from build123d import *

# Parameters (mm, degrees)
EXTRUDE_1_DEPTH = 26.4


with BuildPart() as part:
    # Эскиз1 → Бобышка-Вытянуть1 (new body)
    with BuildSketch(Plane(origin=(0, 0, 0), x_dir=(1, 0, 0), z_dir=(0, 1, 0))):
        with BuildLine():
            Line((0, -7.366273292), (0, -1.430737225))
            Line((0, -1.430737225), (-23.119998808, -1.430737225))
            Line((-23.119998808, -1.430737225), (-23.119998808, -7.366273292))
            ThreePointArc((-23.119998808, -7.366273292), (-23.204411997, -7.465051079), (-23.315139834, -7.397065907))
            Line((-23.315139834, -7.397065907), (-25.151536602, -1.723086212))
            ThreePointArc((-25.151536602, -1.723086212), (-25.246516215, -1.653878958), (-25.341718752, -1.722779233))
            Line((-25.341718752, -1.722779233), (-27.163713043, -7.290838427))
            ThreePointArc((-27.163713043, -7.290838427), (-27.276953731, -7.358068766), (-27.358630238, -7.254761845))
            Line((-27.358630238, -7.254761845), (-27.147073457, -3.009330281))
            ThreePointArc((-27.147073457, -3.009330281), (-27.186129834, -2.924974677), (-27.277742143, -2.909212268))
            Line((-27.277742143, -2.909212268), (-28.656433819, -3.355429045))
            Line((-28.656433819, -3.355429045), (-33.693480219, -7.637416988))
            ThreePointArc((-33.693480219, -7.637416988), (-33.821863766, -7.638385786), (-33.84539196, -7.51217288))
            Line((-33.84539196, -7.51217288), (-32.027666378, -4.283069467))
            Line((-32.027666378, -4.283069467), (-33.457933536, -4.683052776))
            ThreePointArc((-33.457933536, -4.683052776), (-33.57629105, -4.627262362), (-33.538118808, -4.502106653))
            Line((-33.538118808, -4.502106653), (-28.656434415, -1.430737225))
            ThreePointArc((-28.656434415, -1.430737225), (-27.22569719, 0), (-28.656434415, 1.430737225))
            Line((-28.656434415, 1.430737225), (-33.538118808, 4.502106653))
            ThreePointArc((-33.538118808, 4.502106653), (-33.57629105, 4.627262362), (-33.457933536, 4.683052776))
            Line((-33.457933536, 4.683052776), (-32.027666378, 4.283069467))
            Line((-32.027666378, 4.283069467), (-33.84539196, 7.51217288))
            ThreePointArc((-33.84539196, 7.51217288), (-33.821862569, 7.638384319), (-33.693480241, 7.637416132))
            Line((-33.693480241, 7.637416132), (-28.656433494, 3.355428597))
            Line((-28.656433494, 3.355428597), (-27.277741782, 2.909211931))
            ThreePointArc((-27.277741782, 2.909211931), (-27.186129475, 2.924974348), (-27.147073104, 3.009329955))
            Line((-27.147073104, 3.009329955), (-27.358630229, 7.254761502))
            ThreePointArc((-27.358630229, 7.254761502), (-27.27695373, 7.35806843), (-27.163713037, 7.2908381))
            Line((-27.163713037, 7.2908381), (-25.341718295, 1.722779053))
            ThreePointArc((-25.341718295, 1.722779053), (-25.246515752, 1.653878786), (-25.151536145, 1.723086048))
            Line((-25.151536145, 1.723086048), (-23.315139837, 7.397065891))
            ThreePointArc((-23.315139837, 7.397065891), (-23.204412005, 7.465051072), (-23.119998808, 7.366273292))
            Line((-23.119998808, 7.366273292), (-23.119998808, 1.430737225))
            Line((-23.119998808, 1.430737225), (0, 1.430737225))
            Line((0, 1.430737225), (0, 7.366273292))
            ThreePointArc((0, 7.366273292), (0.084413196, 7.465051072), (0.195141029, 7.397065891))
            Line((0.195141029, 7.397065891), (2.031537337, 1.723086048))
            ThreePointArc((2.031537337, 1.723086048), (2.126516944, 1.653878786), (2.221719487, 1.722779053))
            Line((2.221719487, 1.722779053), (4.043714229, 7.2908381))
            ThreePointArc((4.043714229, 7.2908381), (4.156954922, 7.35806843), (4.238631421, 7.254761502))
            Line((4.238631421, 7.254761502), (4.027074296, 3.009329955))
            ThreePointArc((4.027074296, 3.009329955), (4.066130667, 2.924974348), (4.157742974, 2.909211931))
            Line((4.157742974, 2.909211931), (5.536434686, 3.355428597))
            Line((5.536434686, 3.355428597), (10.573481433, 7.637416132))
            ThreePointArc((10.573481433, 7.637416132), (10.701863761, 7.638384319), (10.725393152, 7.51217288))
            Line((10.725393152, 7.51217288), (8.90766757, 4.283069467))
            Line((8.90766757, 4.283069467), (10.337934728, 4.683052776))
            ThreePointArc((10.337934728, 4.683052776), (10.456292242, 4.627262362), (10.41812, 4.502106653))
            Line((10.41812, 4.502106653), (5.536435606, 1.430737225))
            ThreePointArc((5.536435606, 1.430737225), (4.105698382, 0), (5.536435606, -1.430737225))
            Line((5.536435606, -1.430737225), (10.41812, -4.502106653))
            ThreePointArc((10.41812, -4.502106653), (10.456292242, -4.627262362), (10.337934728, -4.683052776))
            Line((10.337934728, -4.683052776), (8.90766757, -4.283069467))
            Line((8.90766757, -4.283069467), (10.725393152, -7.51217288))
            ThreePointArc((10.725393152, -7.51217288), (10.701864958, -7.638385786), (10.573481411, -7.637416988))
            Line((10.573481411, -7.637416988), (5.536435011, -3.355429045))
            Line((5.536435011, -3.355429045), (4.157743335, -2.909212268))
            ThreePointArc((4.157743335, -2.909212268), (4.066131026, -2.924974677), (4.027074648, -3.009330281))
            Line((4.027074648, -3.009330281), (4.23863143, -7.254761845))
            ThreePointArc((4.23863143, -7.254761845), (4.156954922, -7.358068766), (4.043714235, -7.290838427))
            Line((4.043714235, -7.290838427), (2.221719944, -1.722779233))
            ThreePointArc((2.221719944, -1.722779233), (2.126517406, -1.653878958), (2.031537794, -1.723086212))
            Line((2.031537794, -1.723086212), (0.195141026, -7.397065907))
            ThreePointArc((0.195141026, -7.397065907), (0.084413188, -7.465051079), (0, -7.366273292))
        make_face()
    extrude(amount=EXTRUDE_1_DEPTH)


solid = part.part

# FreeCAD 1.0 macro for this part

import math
import FreeCAD as App
import Part
import Sketcher
Q = App.Units.Quantity

doc = App.newDocument("Part")
body = doc.addObject("PartDesign::Body", "Body")

# Sketch on XZ plane
sketch1 = body.newObject("Sketcher::SketchObject", "Sketch")
sketch1.AttachmentSupport = (doc.getObject("XZ_Plane"), [""])
sketch1.MapMode = "FlatFace"
sketch1.addGeometry([
    Part.LineSegment(App.Vector(0, 1.430737, 0), App.Vector(0, 7.366273, 0)),  # 0
    Part.ArcOfCircle(Part.Circle(App.Vector(0.1, 7.366273, 0), App.Vector(0, 0, 1), 0.1), math.radians(17.934295), math.radians(180)),  # 1
    Part.LineSegment(App.Vector(0.195141, 7.397066, 0), App.Vector(2.031538, 1.723086, 0)),  # 2
    Part.ArcOfCircle(Part.Circle(App.Vector(2.126679, 1.753879, 0), App.Vector(0, 0, 1), 0.1), math.radians(-162.065704), math.radians(-18.119261)),  # 3
    Part.LineSegment(App.Vector(2.22172, 1.722779, 0), App.Vector(4.043714, 7.290838, 0)),  # 4
    Part.ArcOfCircle(Part.Circle(App.Vector(4.138755, 7.259739, 0), App.Vector(0, 0, 1), 0.1), math.radians(-2.852782), math.radians(161.880739)),  # 5
    Part.LineSegment(App.Vector(4.238631, 7.254762, 0), App.Vector(4.027075, 3.00933, 0)),  # 6
    Part.ArcOfCircle(Part.Circle(App.Vector(4.126951, 3.004353, 0), App.Vector(0, 0, 1), 0.1), math.radians(177.147219), math.radians(287.934295)),  # 7
    Part.LineSegment(App.Vector(4.157743, 2.909212, 0), App.Vector(5.536435, 3.355429, 0)),  # 8
    Part.LineSegment(App.Vector(5.536435, 3.355429, 0), App.Vector(10.573481, 7.637417, 0)),  # 9
    Part.ArcOfCircle(Part.Circle(App.Vector(10.638252, 7.561228, 0), App.Vector(0, 0, 1), 0.1), math.radians(-29.376652), math.radians(130.368688)),  # 10
    Part.LineSegment(App.Vector(10.725393, 7.512173, 0), App.Vector(8.907668, 4.283069, 0)),  # 11
    Part.LineSegment(App.Vector(8.907668, 4.283069, 0), App.Vector(10.337935, 4.683053, 0)),  # 12
    Part.ArcOfCircle(Part.Circle(App.Vector(10.364867, 4.586748, 0), App.Vector(0, 0, 1), 0.1), math.radians(-57.823465), math.radians(105.623987)),  # 13
    Part.LineSegment(App.Vector(10.41812, 4.502107, 0), App.Vector(5.536436, 1.430737, 0)),  # 14
    Part.ArcOfCircle(Part.Circle(App.Vector(5.536436, 0, 0), App.Vector(0, 0, 1), 1.430737), math.radians(90), math.radians(270)),  # 15
    Part.LineSegment(App.Vector(5.536436, -1.430737, 0), App.Vector(10.41812, -4.502107, 0)),  # 16
    Part.ArcOfCircle(Part.Circle(App.Vector(10.364867, -4.586748, 0), App.Vector(0, 0, 1), 0.1), math.radians(-105.623987), math.radians(57.823465)),  # 17
    Part.LineSegment(App.Vector(10.337935, -4.683053, 0), App.Vector(8.907668, -4.283069, 0)),  # 18
    Part.LineSegment(App.Vector(8.907668, -4.283069, 0), App.Vector(10.725393, -7.512173, 0)),  # 19
    Part.ArcOfCircle(Part.Circle(App.Vector(10.638251, -7.561226, 0), App.Vector(0, 0, 1), 0.1), math.radians(-130.367962), math.radians(29.37555)),  # 20
    Part.LineSegment(App.Vector(10.573481, -7.637416, 0), App.Vector(5.536435, -3.355429, 0)),  # 21
    Part.LineSegment(App.Vector(5.536435, -3.355429, 0), App.Vector(4.157743, -2.909212, 0)),  # 22
    Part.ArcOfCircle(Part.Circle(App.Vector(4.12695, -3.004353, 0), App.Vector(0, 0, 1), 0.1), math.radians(72.065711), math.radians(182.852786)),  # 23
    Part.LineSegment(App.Vector(4.027074, -3.00933, 0), App.Vector(4.238631, -7.254762, 0)),  # 24
    Part.ArcOfCircle(Part.Circle(App.Vector(4.138755, -7.259738, 0), App.Vector(0, 0, 1), 0.1), math.radians(-161.880734), math.radians(2.852787)),  # 25
    Part.LineSegment(App.Vector(4.043714, -7.290838, 0), App.Vector(2.221719, -1.722779, 0)),  # 26
    Part.ArcOfCircle(Part.Circle(App.Vector(2.126678, -1.753879, 0), App.Vector(0, 0, 1), 0.1), math.radians(18.119266), math.radians(162.065709)),  # 27
    Part.LineSegment(App.Vector(2.031537, -1.723086, 0), App.Vector(0.195141, -7.397066, 0)),  # 28
    Part.ArcOfCircle(Part.Circle(App.Vector(0.1, -7.366273, 0), App.Vector(0, 0, 1), 0.1), math.radians(-179.999995), math.radians(-17.934291)),  # 29
    Part.LineSegment(App.Vector(0, -7.366273, 0), App.Vector(0, -1.430737, 0)),  # 30
    Part.LineSegment(App.Vector(0, -1.430737, 0), App.Vector(-23.119999, -1.430737, 0)),  # 31
    Part.LineSegment(App.Vector(-23.119999, -1.430737, 0), App.Vector(-23.119999, -7.366273, 0)),  # 32
    Part.ArcOfCircle(Part.Circle(App.Vector(-23.219999, -7.366273, 0), App.Vector(0, 0, 1), 0.1), math.radians(-162.065709), math.radians(-0.000005)),  # 33
    Part.LineSegment(App.Vector(-23.31514, -7.397066, 0), App.Vector(-25.151536, -1.723086, 0)),  # 34
    Part.ArcOfCircle(Part.Circle(App.Vector(-25.246677, -1.753879, 0), App.Vector(0, 0, 1), 0.1), math.radians(17.934291), math.radians(161.880734)),  # 35
    Part.LineSegment(App.Vector(-25.341718, -1.722779, 0), App.Vector(-27.163713, -7.290838, 0)),  # 36
    Part.ArcOfCircle(Part.Circle(App.Vector(-27.258754, -7.259738, 0), App.Vector(0, 0, 1), 0.1), math.radians(177.147213), math.radians(341.880734)),  # 37
    Part.LineSegment(App.Vector(-27.35863, -7.254762, 0), App.Vector(-27.147073, -3.00933, 0)),  # 38
    Part.ArcOfCircle(Part.Circle(App.Vector(-27.246949, -3.004353, 0), App.Vector(0, 0, 1), 0.1), math.radians(-2.852786), math.radians(107.934289)),  # 39
    Part.LineSegment(App.Vector(-27.277742, -2.909212, 0), App.Vector(-28.656433, -3.355429, 0)),  # 40
    Part.LineSegment(App.Vector(-28.656433, -3.355429, 0), App.Vector(-33.69348, -7.637416, 0)),  # 41
    Part.ArcOfCircle(Part.Circle(App.Vector(-33.75825, -7.561226, 0), App.Vector(0, 0, 1), 0.1), math.radians(150.62445), math.radians(310.367962)),  # 42
    Part.LineSegment(App.Vector(-33.845392, -7.512173, 0), App.Vector(-32.027666, -4.283069, 0)),  # 43
    Part.LineSegment(App.Vector(-32.027666, -4.283069, 0), App.Vector(-33.457934, -4.683053, 0)),  # 44
    Part.ArcOfCircle(Part.Circle(App.Vector(-33.484866, -4.586748, 0), App.Vector(0, 0, 1), 0.1), math.radians(122.176535), math.radians(285.623987)),  # 45
    Part.LineSegment(App.Vector(-33.538119, -4.502107, 0), App.Vector(-28.656434, -1.430737, 0)),  # 46
    Part.ArcOfCircle(Part.Circle(App.Vector(-28.656434, 0, 0), App.Vector(0, 0, 1), 1.430737), math.radians(-90), math.radians(90)),  # 47
    Part.LineSegment(App.Vector(-28.656434, 1.430737, 0), App.Vector(-33.538119, 4.502107, 0)),  # 48
    Part.ArcOfCircle(Part.Circle(App.Vector(-33.484866, 4.586748, 0), App.Vector(0, 0, 1), 0.1), math.radians(74.376013), math.radians(237.823465)),  # 49
    Part.LineSegment(App.Vector(-33.457934, 4.683053, 0), App.Vector(-32.027666, 4.283069, 0)),  # 50
    Part.LineSegment(App.Vector(-32.027666, 4.283069, 0), App.Vector(-33.845392, 7.512173, 0)),  # 51
    Part.ArcOfCircle(Part.Circle(App.Vector(-33.758251, 7.561228, 0), App.Vector(0, 0, 1), 0.1), math.radians(49.631312), math.radians(209.376652)),  # 52
    Part.LineSegment(App.Vector(-33.69348, 7.637417, 0), App.Vector(-28.656434, 3.355429, 0)),  # 53
    Part.LineSegment(App.Vector(-28.656434, 3.355429, 0), App.Vector(-27.277742, 2.909212, 0)),  # 54
    Part.ArcOfCircle(Part.Circle(App.Vector(-27.24695, 3.004353, 0), App.Vector(0, 0, 1), 0.1), math.radians(-107.934295), math.radians(2.852783)),  # 55
    Part.LineSegment(App.Vector(-27.147073, 3.00933, 0), App.Vector(-27.35863, 7.254762, 0)),  # 56
    Part.ArcOfCircle(Part.Circle(App.Vector(-27.258754, 7.259739, 0), App.Vector(0, 0, 1), 0.1), math.radians(18.119261), math.radians(182.852782)),  # 57
    Part.LineSegment(App.Vector(-27.163713, 7.290838, 0), App.Vector(-25.341719, 1.722779, 0)),  # 58
    Part.ArcOfCircle(Part.Circle(App.Vector(-25.246678, 1.753879, 0), App.Vector(0, 0, 1), 0.1), math.radians(-161.880739), math.radians(-17.934296)),  # 59
    Part.LineSegment(App.Vector(-25.151537, 1.723086, 0), App.Vector(-23.31514, 7.397066, 0)),  # 60
    Part.ArcOfCircle(Part.Circle(App.Vector(-23.219999, 7.366273, 0), App.Vector(0, 0, 1), 0.1), math.radians(0.000001), math.radians(162.065704)),  # 61
    Part.LineSegment(App.Vector(-23.119999, 7.366273, 0), App.Vector(-23.119999, 1.430737, 0)),  # 62
    Part.LineSegment(App.Vector(-23.119999, 1.430737, 0), App.Vector(0, 1.430737, 0)),  # 63
], False)
sketch1.addConstraint([
    Sketcher.Constraint("Tangent", 0, 2, 1, 2),
    Sketcher.Constraint("Tangent", 1, 1, 2, 1),
    Sketcher.Constraint("Tangent", 2, 2, 3, 1),
    Sketcher.Constraint("Tangent", 3, 2, 4, 1),
    Sketcher.Constraint("Tangent", 4, 2, 5, 2),
    Sketcher.Constraint("Tangent", 5, 1, 6, 1),
    Sketcher.Constraint("Tangent", 6, 2, 7, 1),
    Sketcher.Constraint("Tangent", 7, 2, 8, 1),
    Sketcher.Constraint("Coincident", 8, 2, 9, 1),
    Sketcher.Constraint("Coincident", 9, 2, 10, 2),
    Sketcher.Constraint("Coincident", 10, 1, 11, 1),
    Sketcher.Constraint("Coincident", 11, 2, 12, 1),
    Sketcher.Constraint("Tangent", 12, 2, 13, 2),
    Sketcher.Constraint("Tangent", 13, 1, 14, 1),
    Sketcher.Constraint("Coincident", 14, 2, 15, 1),
    Sketcher.Constraint("Coincident", 15, 2, 16, 1),
    Sketcher.Constraint("Tangent", 16, 2, 17, 2),
    Sketcher.Constraint("Tangent", 17, 1, 18, 1),
    Sketcher.Constraint("Coincident", 18, 2, 19, 1),
    Sketcher.Constraint("Coincident", 19, 2, 20, 2),
    Sketcher.Constraint("Coincident", 20, 1, 21, 1),
    Sketcher.Constraint("Coincident", 21, 2, 22, 1),
    Sketcher.Constraint("Tangent", 22, 2, 23, 1),
    Sketcher.Constraint("Tangent", 23, 2, 24, 1),
    Sketcher.Constraint("Tangent", 24, 2, 25, 2),
    Sketcher.Constraint("Tangent", 25, 1, 26, 1),
    Sketcher.Constraint("Tangent", 26, 2, 27, 1),
    Sketcher.Constraint("Tangent", 27, 2, 28, 1),
    Sketcher.Constraint("Tangent", 28, 2, 29, 2),
    Sketcher.Constraint("Tangent", 29, 1, 30, 1),
    Sketcher.Constraint("Coincident", 30, 2, 31, 1),
    Sketcher.Constraint("Coincident", 31, 2, 32, 1),
    Sketcher.Constraint("Tangent", 32, 2, 33, 2),
    Sketcher.Constraint("Tangent", 33, 1, 34, 1),
    Sketcher.Constraint("Tangent", 34, 2, 35, 1),
    Sketcher.Constraint("Tangent", 35, 2, 36, 1),
    Sketcher.Constraint("Tangent", 36, 2, 37, 2),
    Sketcher.Constraint("Tangent", 37, 1, 38, 1),
    Sketcher.Constraint("Tangent", 38, 2, 39, 1),
    Sketcher.Constraint("Tangent", 39, 2, 40, 1),
    Sketcher.Constraint("Coincident", 40, 2, 41, 1),
    Sketcher.Constraint("Coincident", 41, 2, 42, 2),
    Sketcher.Constraint("Coincident", 42, 1, 43, 1),
    Sketcher.Constraint("Coincident", 43, 2, 44, 1),
    Sketcher.Constraint("Tangent", 44, 2, 45, 2),
    Sketcher.Constraint("Tangent", 45, 1, 46, 1),
    Sketcher.Constraint("Coincident", 46, 2, 47, 1),
    Sketcher.Constraint("Coincident", 47, 2, 48, 1),
    Sketcher.Constraint("Tangent", 48, 2, 49, 2),
    Sketcher.Constraint("Tangent", 49, 1, 50, 1),
    Sketcher.Constraint("Coincident", 50, 2, 51, 1),
    Sketcher.Constraint("Coincident", 51, 2, 52, 2),
    Sketcher.Constraint("Coincident", 52, 1, 53, 1),
    Sketcher.Constraint("Coincident", 53, 2, 54, 1),
    Sketcher.Constraint("Tangent", 54, 2, 55, 1),
    Sketcher.Constraint("Tangent", 55, 2, 56, 1),
    Sketcher.Constraint("Tangent", 56, 2, 57, 2),
    Sketcher.Constraint("Tangent", 57, 1, 58, 1),
    Sketcher.Constraint("Tangent", 58, 2, 59, 1),
    Sketcher.Constraint("Tangent", 59, 2, 60, 1),
    Sketcher.Constraint("Tangent", 60, 2, 61, 2),
    Sketcher.Constraint("Tangent", 61, 1, 62, 1),
    Sketcher.Constraint("Coincident", 62, 2, 63, 1),
    Sketcher.Constraint("Coincident", 63, 2, 0, 1),
    Sketcher.Constraint("Vertical", 0),
    Sketcher.Constraint("Vertical", 30),
    Sketcher.Constraint("Horizontal", 31),
    Sketcher.Constraint("Vertical", 32),
    Sketcher.Constraint("Vertical", 62),
    Sketcher.Constraint("Horizontal", 63),
    Sketcher.Constraint("Equal", 1, 3),
    Sketcher.Constraint("Equal", 3, 5),
    Sketcher.Constraint("Equal", 5, 7),
    Sketcher.Constraint("Equal", 7, 10),
    Sketcher.Constraint("Equal", 10, 13),
    Sketcher.Constraint("Equal", 13, 17),
    Sketcher.Constraint("Equal", 17, 20),
    Sketcher.Constraint("Equal", 20, 23),
    Sketcher.Constraint("Equal", 23, 25),
    Sketcher.Constraint("Equal", 25, 27),
    Sketcher.Constraint("Equal", 27, 29),
    Sketcher.Constraint("Equal", 29, 33),
    Sketcher.Constraint("Equal", 33, 35),
    Sketcher.Constraint("Equal", 35, 37),
    Sketcher.Constraint("Equal", 37, 39),
    Sketcher.Constraint("Equal", 39, 42),
    Sketcher.Constraint("Equal", 42, 45),
    Sketcher.Constraint("Equal", 15, 47),
    Sketcher.Constraint("Equal", 45, 49),
    Sketcher.Constraint("Equal", 49, 52),
    Sketcher.Constraint("Equal", 52, 55),
    Sketcher.Constraint("Equal", 55, 57),
    Sketcher.Constraint("Equal", 57, 59),
    Sketcher.Constraint("Equal", 59, 61),
    Sketcher.Constraint("Symmetric", 0, 2, 29, 1, -1, 1),
    Sketcher.Constraint("Symmetric", 13, 3, 17, 3, -1),
    Sketcher.Constraint("Symmetric", 10, 3, 20, 3, -1),
    Sketcher.Constraint("Symmetric", 7, 3, 23, 3, -1),
    Sketcher.Constraint("Symmetric", 5, 3, 25, 3, -1),
    Sketcher.Constraint("Symmetric", 3, 3, 27, 3, -1),
    Sketcher.Constraint("Symmetric", 45, 3, 49, 3, -1),
    Sketcher.Constraint("Symmetric", 42, 3, 52, 3, -1),
    Sketcher.Constraint("Symmetric", 39, 3, 55, 3, -1),
    Sketcher.Constraint("Symmetric", 37, 3, 57, 3, -1),
    Sketcher.Constraint("Symmetric", 35, 3, 59, 3, -1),
    Sketcher.Constraint("Symmetric", 33, 3, 61, 3, -1),
    Sketcher.Constraint("Symmetric", 14, 2, 15, 2, -1),
    Sketcher.Constraint("Symmetric", 11, 2, 18, 2, -1),
    Sketcher.Constraint("Symmetric", 8, 2, 21, 2, -1),
    Sketcher.Constraint("Symmetric", 46, 2, 47, 2, -1),
    Sketcher.Constraint("Symmetric", 43, 2, 50, 2, -1),
    Sketcher.Constraint("Symmetric", 40, 2, 53, 2, -1),
    Sketcher.Constraint("Symmetric", 30, 2, 63, 2, -1),
    Sketcher.Constraint("Perpendicular", 2, 8),
    Sketcher.Constraint("Perpendicular", 8, 34),
    Sketcher.Constraint("Parallel", 4, 36),
    Sketcher.Constraint("Parallel", 6, 38),
    Sketcher.Constraint("Perpendicular", 34, 40),
    Sketcher.Constraint("Parallel", 9, 41),
    Sketcher.Constraint("Parallel", 11, 43),
    Sketcher.Constraint("Parallel", 12, 44),
    Sketcher.Constraint("Parallel", 14, 46),
    Sketcher.Constraint("Horizontal", 29, 3, 33, 3),
    Sketcher.Constraint("Horizontal", 27, 3, 35, 3),
    Sketcher.Constraint("Horizontal", 25, 3, 37, 3),
    Sketcher.Constraint("Horizontal", 23, 3, 39, 3),
    Sketcher.Constraint("Horizontal", 20, 3, 42, 3),
    Sketcher.Constraint("Horizontal", 17, 3, 45, 3),
    Sketcher.Constraint("Horizontal", 15, 2, 30, 2),
    Sketcher.Constraint("Horizontal", 21, 2, 40, 2),
    Sketcher.Constraint("Horizontal", 20, 1, 41, 2),
    Sketcher.Constraint("Horizontal", 19, 2, 42, 1),
    Sketcher.Constraint("Horizontal", 18, 2, 43, 2),
    Sketcher.Constraint("Horizontal", 10, 1, 51, 2),
    Sketcher.Constraint("Horizontal", 9, 2, 52, 1),
    Sketcher.Constraint("Vertical", 15, 3, 8, 2),
    Sketcher.Constraint("Vertical", 8, 2, 14, 2),
    Sketcher.Constraint("Vertical", 10, 1, 19, 2),
    Sketcher.Constraint("Vertical", 9, 2, 20, 1),
    Sketcher.Constraint("Vertical", 47, 3, 40, 2),
    Sketcher.Constraint("Radius", 1, Q("0.1 mm")),
    Sketcher.Constraint("DistanceX", 31, 2, 31, 1, Q("23.119999 mm")),
    Sketcher.Constraint("Radius", 15, Q("1.430737 mm")),
    Sketcher.Constraint("Distance", 6, Q("4.250699 mm")),
    Sketcher.Constraint("Distance", 4, Q("5.858579 mm")),
    Sketcher.Constraint("Distance", 11, Q("3.705568 mm")),
    Sketcher.Constraint("Distance", 14, Q("5.767508 mm")),
    Sketcher.Constraint("DistanceY", 0, 1, 0, 2, Q("5.935536 mm")),
    Sketcher.Constraint("DistanceX", -1, 1, 3, 3, Q("2.126679 mm")),
    Sketcher.Constraint("DistanceY", -1, 1, 3, 3, Q("1.753879 mm")),
    Sketcher.Constraint("DistanceY", -1, 1, 5, 3, Q("7.259739 mm")),
    Sketcher.Constraint("DistanceX", -1, 1, 7, 3, Q("4.126951 mm")),
    Sketcher.Constraint("DistanceX", -1, 1, 10, 3, Q("10.638252 mm")),
    Sketcher.Constraint("DistanceY", -1, 1, 8, 2, Q("3.355429 mm")),
    Sketcher.Constraint("DistanceX", -1, 1, 9, 2, Q("10.573481 mm")),
    Sketcher.Constraint("DistanceY", -1, 1, 11, 2, Q("4.283069 mm")),
    Sketcher.Constraint("DistanceX", -1, 1, 13, 1, Q("10.41812 mm")),
    Sketcher.Constraint("DistanceX", 42, 1, -1, 1, Q("33.845392 mm")),
    Sketcher.Constraint("Distance", 9, Q("6.611146 mm")),
])
pad1 = body.newObject("PartDesign::Pad", "Pad")
pad1.Profile = sketch1
pad1.Length = 26.4
pad1.Reversed = True

doc.recompute()
